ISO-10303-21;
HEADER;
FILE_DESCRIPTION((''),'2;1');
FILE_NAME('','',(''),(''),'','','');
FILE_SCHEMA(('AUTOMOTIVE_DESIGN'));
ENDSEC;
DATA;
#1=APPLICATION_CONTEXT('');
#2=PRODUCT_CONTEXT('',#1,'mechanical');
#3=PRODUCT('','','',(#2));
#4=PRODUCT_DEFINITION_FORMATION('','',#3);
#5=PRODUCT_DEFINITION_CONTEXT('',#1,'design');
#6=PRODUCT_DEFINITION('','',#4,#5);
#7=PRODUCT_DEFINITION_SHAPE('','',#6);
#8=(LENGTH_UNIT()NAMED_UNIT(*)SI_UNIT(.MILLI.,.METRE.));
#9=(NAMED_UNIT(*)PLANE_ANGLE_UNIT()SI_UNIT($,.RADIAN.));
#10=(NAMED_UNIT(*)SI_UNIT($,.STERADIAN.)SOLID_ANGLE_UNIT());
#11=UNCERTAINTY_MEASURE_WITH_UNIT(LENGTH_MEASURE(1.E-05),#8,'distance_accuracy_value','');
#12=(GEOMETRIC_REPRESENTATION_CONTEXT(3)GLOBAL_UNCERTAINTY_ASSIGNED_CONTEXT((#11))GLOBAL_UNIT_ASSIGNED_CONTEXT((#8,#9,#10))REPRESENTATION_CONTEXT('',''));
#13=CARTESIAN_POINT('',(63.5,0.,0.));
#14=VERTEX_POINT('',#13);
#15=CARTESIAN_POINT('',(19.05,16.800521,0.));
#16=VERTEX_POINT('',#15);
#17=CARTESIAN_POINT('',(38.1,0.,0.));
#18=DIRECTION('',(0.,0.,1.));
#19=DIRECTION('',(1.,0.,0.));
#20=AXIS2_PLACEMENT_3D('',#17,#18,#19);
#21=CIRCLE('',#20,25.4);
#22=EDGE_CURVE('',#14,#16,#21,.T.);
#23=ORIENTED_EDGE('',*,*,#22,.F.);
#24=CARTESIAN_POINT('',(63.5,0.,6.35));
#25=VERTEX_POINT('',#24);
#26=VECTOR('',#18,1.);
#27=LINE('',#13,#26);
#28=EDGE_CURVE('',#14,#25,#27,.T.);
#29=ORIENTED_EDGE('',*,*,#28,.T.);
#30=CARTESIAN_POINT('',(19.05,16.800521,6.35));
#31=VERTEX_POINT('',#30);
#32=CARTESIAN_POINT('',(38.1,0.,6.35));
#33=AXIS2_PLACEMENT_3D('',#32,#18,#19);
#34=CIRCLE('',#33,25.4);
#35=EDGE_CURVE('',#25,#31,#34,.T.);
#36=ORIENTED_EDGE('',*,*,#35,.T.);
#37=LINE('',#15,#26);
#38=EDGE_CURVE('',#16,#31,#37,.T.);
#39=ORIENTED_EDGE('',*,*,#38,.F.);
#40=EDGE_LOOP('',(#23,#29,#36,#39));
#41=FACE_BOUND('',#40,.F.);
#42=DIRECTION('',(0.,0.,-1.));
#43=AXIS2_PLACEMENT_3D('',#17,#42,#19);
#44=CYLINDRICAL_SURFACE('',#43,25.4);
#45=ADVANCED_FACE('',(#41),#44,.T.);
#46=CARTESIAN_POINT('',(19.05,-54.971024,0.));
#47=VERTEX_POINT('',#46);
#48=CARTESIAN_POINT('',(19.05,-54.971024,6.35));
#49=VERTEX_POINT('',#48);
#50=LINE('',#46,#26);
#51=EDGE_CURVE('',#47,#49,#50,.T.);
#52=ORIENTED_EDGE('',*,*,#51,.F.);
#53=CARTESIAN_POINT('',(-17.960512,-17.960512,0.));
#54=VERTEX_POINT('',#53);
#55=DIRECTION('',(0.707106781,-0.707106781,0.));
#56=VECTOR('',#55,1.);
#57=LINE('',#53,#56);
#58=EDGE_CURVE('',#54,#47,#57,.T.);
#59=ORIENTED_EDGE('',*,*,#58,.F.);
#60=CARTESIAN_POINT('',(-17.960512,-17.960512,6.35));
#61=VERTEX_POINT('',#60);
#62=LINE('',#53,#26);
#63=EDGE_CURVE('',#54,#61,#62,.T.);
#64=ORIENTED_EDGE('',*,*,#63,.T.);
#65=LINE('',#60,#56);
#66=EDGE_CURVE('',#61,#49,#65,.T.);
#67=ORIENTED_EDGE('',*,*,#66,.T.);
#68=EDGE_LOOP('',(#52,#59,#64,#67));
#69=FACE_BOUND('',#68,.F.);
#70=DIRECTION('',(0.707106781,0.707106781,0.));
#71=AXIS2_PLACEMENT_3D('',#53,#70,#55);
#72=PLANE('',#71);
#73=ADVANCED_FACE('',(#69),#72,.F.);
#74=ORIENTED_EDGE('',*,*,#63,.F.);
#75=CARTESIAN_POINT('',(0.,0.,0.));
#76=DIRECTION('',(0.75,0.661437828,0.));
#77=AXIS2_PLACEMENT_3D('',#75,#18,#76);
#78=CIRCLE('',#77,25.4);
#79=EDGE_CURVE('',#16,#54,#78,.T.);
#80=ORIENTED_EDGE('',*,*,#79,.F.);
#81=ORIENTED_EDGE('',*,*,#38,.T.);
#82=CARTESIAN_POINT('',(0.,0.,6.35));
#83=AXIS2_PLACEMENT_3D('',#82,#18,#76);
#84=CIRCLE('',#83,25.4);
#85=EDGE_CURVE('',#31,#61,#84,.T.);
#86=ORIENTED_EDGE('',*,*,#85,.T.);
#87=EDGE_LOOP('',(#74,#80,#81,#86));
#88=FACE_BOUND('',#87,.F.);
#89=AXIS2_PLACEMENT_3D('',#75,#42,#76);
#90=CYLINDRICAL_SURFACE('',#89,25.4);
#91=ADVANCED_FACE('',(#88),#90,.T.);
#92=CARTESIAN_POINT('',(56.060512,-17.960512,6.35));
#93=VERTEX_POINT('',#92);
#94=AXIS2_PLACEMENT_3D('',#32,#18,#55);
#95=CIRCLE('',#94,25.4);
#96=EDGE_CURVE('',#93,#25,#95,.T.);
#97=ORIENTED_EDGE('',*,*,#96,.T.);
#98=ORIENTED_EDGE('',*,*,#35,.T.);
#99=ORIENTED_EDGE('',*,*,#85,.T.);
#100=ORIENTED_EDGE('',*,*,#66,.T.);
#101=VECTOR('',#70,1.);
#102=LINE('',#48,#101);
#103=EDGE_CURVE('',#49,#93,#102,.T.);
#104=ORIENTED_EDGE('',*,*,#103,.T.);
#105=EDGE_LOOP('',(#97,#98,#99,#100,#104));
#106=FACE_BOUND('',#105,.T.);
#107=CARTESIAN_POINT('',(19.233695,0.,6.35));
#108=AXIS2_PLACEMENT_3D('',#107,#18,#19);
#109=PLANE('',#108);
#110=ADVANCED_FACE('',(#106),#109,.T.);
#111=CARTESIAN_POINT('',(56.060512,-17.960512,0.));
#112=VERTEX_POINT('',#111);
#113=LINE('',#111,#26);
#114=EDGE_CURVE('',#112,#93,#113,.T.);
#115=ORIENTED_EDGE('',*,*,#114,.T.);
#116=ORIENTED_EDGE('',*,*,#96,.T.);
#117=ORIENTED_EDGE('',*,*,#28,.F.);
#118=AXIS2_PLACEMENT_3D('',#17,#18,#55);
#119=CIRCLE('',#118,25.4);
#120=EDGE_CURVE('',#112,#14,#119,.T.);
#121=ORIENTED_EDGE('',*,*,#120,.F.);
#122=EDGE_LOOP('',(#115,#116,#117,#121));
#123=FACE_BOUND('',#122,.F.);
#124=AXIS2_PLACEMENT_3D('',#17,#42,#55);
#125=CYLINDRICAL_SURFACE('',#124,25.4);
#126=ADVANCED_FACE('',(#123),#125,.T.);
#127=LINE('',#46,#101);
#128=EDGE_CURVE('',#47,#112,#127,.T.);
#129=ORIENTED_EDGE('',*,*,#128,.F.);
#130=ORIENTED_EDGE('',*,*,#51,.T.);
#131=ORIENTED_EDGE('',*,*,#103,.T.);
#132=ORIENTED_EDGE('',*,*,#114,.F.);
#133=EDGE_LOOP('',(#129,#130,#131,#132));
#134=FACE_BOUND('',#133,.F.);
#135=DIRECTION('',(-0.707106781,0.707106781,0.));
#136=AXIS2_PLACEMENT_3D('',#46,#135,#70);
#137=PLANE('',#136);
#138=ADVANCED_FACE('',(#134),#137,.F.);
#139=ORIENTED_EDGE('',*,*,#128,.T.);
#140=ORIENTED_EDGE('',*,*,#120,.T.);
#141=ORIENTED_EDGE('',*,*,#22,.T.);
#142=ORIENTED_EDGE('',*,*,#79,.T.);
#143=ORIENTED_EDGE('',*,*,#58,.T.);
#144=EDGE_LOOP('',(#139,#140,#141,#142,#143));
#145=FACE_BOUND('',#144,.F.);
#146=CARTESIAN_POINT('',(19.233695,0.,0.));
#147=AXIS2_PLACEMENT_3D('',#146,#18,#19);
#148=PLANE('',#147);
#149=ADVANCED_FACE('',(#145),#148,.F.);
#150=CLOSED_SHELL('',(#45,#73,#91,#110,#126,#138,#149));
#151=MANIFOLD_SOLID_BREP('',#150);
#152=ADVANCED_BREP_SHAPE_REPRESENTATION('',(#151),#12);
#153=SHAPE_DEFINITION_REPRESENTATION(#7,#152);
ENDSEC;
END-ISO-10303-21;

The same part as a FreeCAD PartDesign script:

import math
import FreeCAD as App
import Part
import Sketcher
from FreeCAD import Vector
Q = App.Units.Quantity

doc = App.newDocument("Part")
body = doc.addObject("PartDesign::Body", "Body")

# Sketch on XY plane
sketch1 = body.newObject("Sketcher::SketchObject", "Sketch")
sketch1.AttachmentSupport = (doc.getObject("XY_Plane"), [""])
sketch1.MapMode = "FlatFace"
sketch1.addGeometry([
    Part.ArcOfCircle(Part.Circle(Vector(38, 0, 0), Vector(0, 0, 1), 25), math.radians(-45), math.radians(0)),  # 0
    Part.ArcOfCircle(Part.Circle(Vector(38, 0, 0), Vector(0, 0, 1), 25), math.radians(0), math.radians(139)),  # 1
    Part.ArcOfCircle(Part.Circle(Vector(0, 0, 0), Vector(0, 0, 1), 25), math.radians(41), math.radians(225)),  # 2
    Part.LineSegment(Vector(-18, -18, 0), Vector(19, -55, 0)),  # 3
    Part.LineSegment(Vector(19, -55, 0), Vector(56, -18, 0)),  # 4
], False)
sketch1.addConstraint([
    Sketcher.Constraint("Tangent", 0, 2, 1, 1),
    Sketcher.Constraint("Coincident", 1, 2, 2, 1),
    Sketcher.Constraint("Tangent", 2, 2, 3, 1),
    Sketcher.Constraint("Coincident", 3, 2, 4, 1),
    Sketcher.Constraint("Tangent", 4, 2, 0, 1),
    Sketcher.Constraint("Coincident", 2, 3, -1, 1),
    Sketcher.Constraint("Equal", 0, 1),
    Sketcher.Constraint("Equal", 1, 2),
    Sketcher.Constraint("PointOnObject", 0, 3, -1),
    Sketcher.Constraint("PointOnObject", 0, 2, -1),
    Sketcher.Constraint("Perpendicular", 3, 4),
    Sketcher.Constraint("Horizontal", 2, 2, 4, 2),
    Sketcher.Constraint("Radius", 0, Q("1 in")),
    Sketcher.Constraint("DistanceX", -1, 1, 0, 3, Q("1.5 in")),
])
pad1 = body.newObject("PartDesign::Pad", "Pad")
pad1.Profile = sketch1
pad1.Length = Q("0.25 in")

doc.recompute()
